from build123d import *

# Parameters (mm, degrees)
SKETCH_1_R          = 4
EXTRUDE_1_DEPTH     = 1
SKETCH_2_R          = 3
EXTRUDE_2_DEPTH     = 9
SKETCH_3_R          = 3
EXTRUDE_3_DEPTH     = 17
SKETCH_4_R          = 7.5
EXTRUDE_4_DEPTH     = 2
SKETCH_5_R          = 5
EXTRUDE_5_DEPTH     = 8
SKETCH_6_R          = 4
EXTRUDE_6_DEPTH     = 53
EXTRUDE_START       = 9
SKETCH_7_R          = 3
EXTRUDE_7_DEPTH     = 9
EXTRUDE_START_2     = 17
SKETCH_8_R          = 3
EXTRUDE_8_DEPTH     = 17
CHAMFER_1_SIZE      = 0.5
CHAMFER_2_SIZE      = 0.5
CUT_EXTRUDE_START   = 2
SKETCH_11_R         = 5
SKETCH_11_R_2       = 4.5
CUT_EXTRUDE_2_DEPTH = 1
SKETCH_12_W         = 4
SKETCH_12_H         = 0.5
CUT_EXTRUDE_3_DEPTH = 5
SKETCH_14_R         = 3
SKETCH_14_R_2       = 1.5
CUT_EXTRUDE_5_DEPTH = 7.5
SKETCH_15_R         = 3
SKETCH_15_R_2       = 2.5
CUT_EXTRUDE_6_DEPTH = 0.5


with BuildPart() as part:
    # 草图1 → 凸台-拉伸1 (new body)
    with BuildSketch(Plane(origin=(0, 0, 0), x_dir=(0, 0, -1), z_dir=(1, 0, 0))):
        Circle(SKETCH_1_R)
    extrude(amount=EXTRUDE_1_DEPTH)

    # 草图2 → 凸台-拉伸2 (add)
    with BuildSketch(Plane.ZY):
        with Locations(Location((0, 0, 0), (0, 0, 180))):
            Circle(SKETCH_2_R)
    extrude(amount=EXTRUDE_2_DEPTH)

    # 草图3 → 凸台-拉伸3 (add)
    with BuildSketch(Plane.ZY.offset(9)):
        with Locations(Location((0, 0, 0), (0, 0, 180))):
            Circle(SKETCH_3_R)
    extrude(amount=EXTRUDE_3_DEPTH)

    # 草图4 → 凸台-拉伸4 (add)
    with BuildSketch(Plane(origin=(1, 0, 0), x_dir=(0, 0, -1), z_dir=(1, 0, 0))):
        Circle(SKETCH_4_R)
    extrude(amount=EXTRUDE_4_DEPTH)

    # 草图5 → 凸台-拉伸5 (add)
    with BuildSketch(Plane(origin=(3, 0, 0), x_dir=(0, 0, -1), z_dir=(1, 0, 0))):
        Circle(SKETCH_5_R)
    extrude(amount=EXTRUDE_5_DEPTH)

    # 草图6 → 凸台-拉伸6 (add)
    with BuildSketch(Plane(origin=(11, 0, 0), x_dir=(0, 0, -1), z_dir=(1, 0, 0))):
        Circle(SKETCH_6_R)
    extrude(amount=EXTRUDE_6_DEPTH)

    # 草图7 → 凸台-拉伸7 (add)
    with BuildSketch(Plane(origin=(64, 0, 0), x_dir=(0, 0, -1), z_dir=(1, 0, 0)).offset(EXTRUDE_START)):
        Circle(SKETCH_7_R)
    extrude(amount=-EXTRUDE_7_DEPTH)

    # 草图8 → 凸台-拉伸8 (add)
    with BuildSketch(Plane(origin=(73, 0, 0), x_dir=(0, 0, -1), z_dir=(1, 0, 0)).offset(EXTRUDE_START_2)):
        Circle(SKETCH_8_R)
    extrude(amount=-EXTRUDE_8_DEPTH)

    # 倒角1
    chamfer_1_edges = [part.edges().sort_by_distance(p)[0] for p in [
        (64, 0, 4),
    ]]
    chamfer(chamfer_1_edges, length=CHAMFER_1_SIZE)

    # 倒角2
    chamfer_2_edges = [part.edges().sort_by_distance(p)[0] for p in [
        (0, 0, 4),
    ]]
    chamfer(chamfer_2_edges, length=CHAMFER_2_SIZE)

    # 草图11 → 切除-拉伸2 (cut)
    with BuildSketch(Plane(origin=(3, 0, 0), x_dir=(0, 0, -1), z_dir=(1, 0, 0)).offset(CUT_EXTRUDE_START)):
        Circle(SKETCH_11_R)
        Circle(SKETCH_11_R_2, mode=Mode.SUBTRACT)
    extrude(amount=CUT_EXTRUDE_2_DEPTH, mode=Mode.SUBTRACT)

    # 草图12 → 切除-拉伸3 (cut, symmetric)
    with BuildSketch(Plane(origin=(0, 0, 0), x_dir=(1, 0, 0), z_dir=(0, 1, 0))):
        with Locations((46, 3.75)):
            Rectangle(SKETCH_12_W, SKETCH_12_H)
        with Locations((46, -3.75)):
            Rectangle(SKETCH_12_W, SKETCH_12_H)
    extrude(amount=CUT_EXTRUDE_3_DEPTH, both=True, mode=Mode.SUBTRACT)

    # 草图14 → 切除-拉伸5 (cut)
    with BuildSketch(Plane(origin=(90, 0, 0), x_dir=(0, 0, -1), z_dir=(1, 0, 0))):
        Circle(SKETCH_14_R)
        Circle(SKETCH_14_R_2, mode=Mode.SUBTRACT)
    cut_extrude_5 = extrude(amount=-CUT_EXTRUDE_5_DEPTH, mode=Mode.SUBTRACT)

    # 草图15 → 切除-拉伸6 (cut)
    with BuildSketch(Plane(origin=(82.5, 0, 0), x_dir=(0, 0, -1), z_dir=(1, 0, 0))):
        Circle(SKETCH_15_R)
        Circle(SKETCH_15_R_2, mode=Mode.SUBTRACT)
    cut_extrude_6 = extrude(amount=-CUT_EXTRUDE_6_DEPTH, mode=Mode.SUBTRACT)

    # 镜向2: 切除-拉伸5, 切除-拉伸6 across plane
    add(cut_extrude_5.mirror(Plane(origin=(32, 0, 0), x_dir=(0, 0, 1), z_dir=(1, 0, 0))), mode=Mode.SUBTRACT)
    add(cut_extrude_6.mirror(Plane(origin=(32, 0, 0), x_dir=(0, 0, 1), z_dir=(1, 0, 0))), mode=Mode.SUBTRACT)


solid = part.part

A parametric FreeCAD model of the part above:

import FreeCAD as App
import Part
import Sketcher

V = App.Vector


def edges_at(feature, points):
    """Names of the edges that pass closest to the given points."""
    edges = feature.Shape.Edges
    near = lambda p: min(range(len(edges)), key=lambda i: edges[i].distToShape(Part.Vertex(*p))[0])
    return sorted({f"Edge{near(p) + 1}" for p in points})

doc = App.newDocument("Part")
params = doc.addObject("Spreadsheet::Sheet", "Params")
for row, (alias, value) in enumerate([
    ("sketch1_diameter", "8 mm"),
    ("pad1_length", "1 mm"),
    ("sketch2_diameter", "6 mm"),
    ("pad2_length", "9 mm"),
    ("sketch3_diameter", "6 mm"),
    ("pad3_length", "17 mm"),
    ("sketch4_diameter", "15 mm"),
    ("pad4_length", "2 mm"),
    ("sketch5_diameter", "10 mm"),
    ("pad5_length", "8 mm"),
    ("sketch6_diameter", "8 mm"),
    ("pad6_length", "53 mm"),
    ("sketch7_diameter", "6 mm"),
    ("pad7_length", "9 mm"),
    ("sketch8_diameter", "6 mm"),
    ("pad8_length", "17 mm"),
    ("chamfer_size", "0.5 mm"),
    ("chamfer2_size", "0.5 mm"),
    ("sketch9_diameter", "10 mm"),
    ("sketch9_diameter2", "9 mm"),
    ("pocket1_length", "1 mm"),
    ("sketch10_width", "4 mm"),
    ("sketch10_height", "0.5 mm"),
    ("pocket2_length", "10 mm"),
    ("sketch11_diameter", "6 mm"),
    ("sketch11_diameter2", "3 mm"),
    ("pocket3_length", "7.5 mm"),
    ("sketch12_diameter", "6 mm"),
    ("sketch12_diameter2", "5 mm"),
    ("pocket4_length", "0.5 mm"),
], start=1):
    params.set(f"A{row}", alias)
    params.set(f"B{row}", "=" + value)
    params.setAlias(f"B{row}", alias)

body = doc.addObject("PartDesign::Body", "Body")

sketch1 = doc.addObject("Sketcher::SketchObject", "Sketch")
body.addObject(sketch1)
sketch1.AttachmentSupport = (doc.YZ_Plane, [""])
sketch1.MapMode = "FlatFace"
sketch1.addGeometry(Part.Circle(V(0, 0, 0), V(0, 0, 1), 4), False)
sketch1.addConstraint([
    Sketcher.Constraint("Coincident", 0, 3, -1, 1),
    Sketcher.Constraint("Diameter", 0, 8.0),
])
sketch1.setExpression("Constraints[1]", "Params.sketch1_diameter")
pad1 = doc.addObject("PartDesign::Pad", "Pad")
body.addObject(pad1)
pad1.Profile = sketch1
pad1.setExpression("Length", "Params.pad1_length")

sketch2 = doc.addObject("Sketcher::SketchObject", "Sketch001")
body.addObject(sketch2)
sketch2.AttachmentSupport = (doc.YZ_Plane, [""])
sketch2.MapMode = "FlatFace"
sketch2.addGeometry(Part.Circle(V(0, 0, 0), V(0, 0, 1), 3), False)
sketch2.addConstraint([
    Sketcher.Constraint("Coincident", 0, 3, -1, 1),
    Sketcher.Constraint("Diameter", 0, 6.0),
])
sketch2.setExpression("Constraints[1]", "Params.sketch2_diameter")
pad2 = doc.addObject("PartDesign::Pad", "Pad001")
body.addObject(pad2)
pad2.Profile = sketch2
pad2.setExpression("Length", "Params.pad2_length")
pad2.Reversed = True

sketch3 = doc.addObject("Sketcher::SketchObject", "Sketch002")
body.addObject(sketch3)
sketch3.AttachmentSupport = (doc.YZ_Plane, [""])
sketch3.MapMode = "FlatFace"
sketch3.AttachmentOffset = App.Placement(V(0, 0, -9), App.Rotation())
sketch3.addGeometry(Part.Circle(V(0, 0, 0), V(0, 0, 1), 3), False)
sketch3.addConstraint([
    Sketcher.Constraint("Coincident", 0, 3, -1, 1),
    Sketcher.Constraint("Diameter", 0, 6.0),
])
sketch3.setExpression("Constraints[1]", "Params.sketch3_diameter")
pad3 = doc.addObject("PartDesign::Pad", "Pad002")
body.addObject(pad3)
pad3.Profile = sketch3
pad3.setExpression("Length", "Params.pad3_length")
pad3.Reversed = True

sketch4 = doc.addObject("Sketcher::SketchObject", "Sketch003")
body.addObject(sketch4)
sketch4.AttachmentSupport = (doc.YZ_Plane, [""])
sketch4.MapMode = "FlatFace"
sketch4.AttachmentOffset = App.Placement(V(0, 0, 1), App.Rotation())
sketch4.addGeometry(Part.Circle(V(0, 0, 0), V(0, 0, 1), 7.5), False)
sketch4.addConstraint([
    Sketcher.Constraint("Coincident", 0, 3, -1, 1),
    Sketcher.Constraint("Diameter", 0, 15.0),
])
sketch4.setExpression("Constraints[1]", "Params.sketch4_diameter")
pad4 = doc.addObject("PartDesign::Pad", "Pad003")
body.addObject(pad4)
pad4.Profile = sketch4
pad4.setExpression("Length", "Params.pad4_length")

sketch5 = doc.addObject("Sketcher::SketchObject", "Sketch004")
body.addObject(sketch5)
sketch5.AttachmentSupport = (doc.YZ_Plane, [""])
sketch5.MapMode = "FlatFace"
sketch5.AttachmentOffset = App.Placement(V(0, 0, 3), App.Rotation())
sketch5.addGeometry(Part.Circle(V(0, 0, 0), V(0, 0, 1), 5), False)
sketch5.addConstraint([
    Sketcher.Constraint("Coincident", 0, 3, -1, 1),
    Sketcher.Constraint("Diameter", 0, 10.0),
])
sketch5.setExpression("Constraints[1]", "Params.sketch5_diameter")
pad5 = doc.addObject("PartDesign::Pad", "Pad004")
body.addObject(pad5)
pad5.Profile = sketch5
pad5.setExpression("Length", "Params.pad5_length")

sketch6 = doc.addObject("Sketcher::SketchObject", "Sketch005")
body.addObject(sketch6)
sketch6.AttachmentSupport = (doc.YZ_Plane, [""])
sketch6.MapMode = "FlatFace"
sketch6.AttachmentOffset = App.Placement(V(0, 0, 11), App.Rotation())
sketch6.addGeometry(Part.Circle(V(0, 0, 0), V(0, 0, 1), 4), False)
sketch6.addConstraint([
    Sketcher.Constraint("Coincident", 0, 3, -1, 1),
    Sketcher.Constraint("Diameter", 0, 8.0),
])
sketch6.setExpression("Constraints[1]", "Params.sketch6_diameter")
pad6 = doc.addObject("PartDesign::Pad", "Pad005")
body.addObject(pad6)
pad6.Profile = sketch6
pad6.setExpression("Length", "Params.pad6_length")

sketch7 = doc.addObject("Sketcher::SketchObject", "Sketch006")
body.addObject(sketch7)
sketch7.AttachmentSupport = (doc.YZ_Plane, [""])
sketch7.MapMode = "FlatFace"
sketch7.AttachmentOffset = App.Placement(V(0, 0, 73), App.Rotation())
sketch7.addGeometry(Part.Circle(V(0, 0, 0), V(0, 0, 1), 3), False)
sketch7.addConstraint([
    Sketcher.Constraint("Coincident", 0, 3, -1, 1),
    Sketcher.Constraint("Diameter", 0, 6.0),
])
sketch7.setExpression("Constraints[1]", "Params.sketch7_diameter")
pad7 = doc.addObject("PartDesign::Pad", "Pad006")
body.addObject(pad7)
pad7.Profile = sketch7
pad7.setExpression("Length", "Params.pad7_length")
pad7.Reversed = True

sketch8 = doc.addObject("Sketcher::SketchObject", "Sketch007")
body.addObject(sketch8)
sketch8.AttachmentSupport = (doc.YZ_Plane, [""])
sketch8.MapMode = "FlatFace"
sketch8.AttachmentOffset = App.Placement(V(0, 0, 90), App.Rotation())
sketch8.addGeometry(Part.Circle(V(0, 0, 0), V(0, 0, 1), 3), False)
sketch8.addConstraint([
    Sketcher.Constraint("Coincident", 0, 3, -1, 1),
    Sketcher.Constraint("Diameter", 0, 6.0),
])
sketch8.setExpression("Constraints[1]", "Params.sketch8_diameter")
pad8 = doc.addObject("PartDesign::Pad", "Pad007")
body.addObject(pad8)
pad8.Profile = sketch8
pad8.setExpression("Length", "Params.pad8_length")
pad8.Reversed = True
doc.recompute()

chamfer = doc.addObject("PartDesign::Chamfer", "Chamfer")
body.addObject(chamfer)
chamfer.Base = (pad8, edges_at(pad8, [(64, 0, 4)]))
chamfer.setExpression("Size", "Params.chamfer_size")
doc.recompute()

chamfer2 = doc.addObject("PartDesign::Chamfer", "Chamfer001")
body.addObject(chamfer2)
chamfer2.Base = (chamfer, edges_at(chamfer, [(0, 0, 4)]))
chamfer2.setExpression("Size", "Params.chamfer2_size")

sketch9 = doc.addObject("Sketcher::SketchObject", "Sketch008")
body.addObject(sketch9)
sketch9.AttachmentSupport = (doc.YZ_Plane, [""])
sketch9.MapMode = "FlatFace"
sketch9.AttachmentOffset = App.Placement(V(0, 0, 5), App.Rotation())
sketch9.addGeometry([
    Part.Circle(V(0, 0, 0), V(0, 0, 1), 5),
    Part.Circle(V(0, 0, 0), V(0, 0, 1), 4.5),
], False)
sketch9.addConstraint([
    Sketcher.Constraint("Coincident", 0, 3, -1, 1),
    Sketcher.Constraint("Coincident", 1, 3, -1, 1),
    Sketcher.Constraint("Diameter", 0, 10.0),
    Sketcher.Constraint("Diameter", 1, 9.0),
])
sketch9.setExpression("Constraints[2]", "Params.sketch9_diameter")
sketch9.setExpression("Constraints[3]", "Params.sketch9_diameter2")
pocket1 = doc.addObject("PartDesign::Pocket", "Pocket")
body.addObject(pocket1)
pocket1.Profile = sketch9
pocket1.setExpression("Length", "Params.pocket1_length")
pocket1.Reversed = True

sketch10 = doc.addObject("Sketcher::SketchObject", "Sketch009")
body.addObject(sketch10)
sketch10.AttachmentSupport = (doc.XZ_Plane, [""])
sketch10.MapMode = "FlatFace"
sketch10.addGeometry([
    Part.LineSegment(V(44, -4, 0), V(44, -3.5, 0)),
    Part.LineSegment(V(44, -3.5, 0), V(48, -3.5, 0)),
    Part.LineSegment(V(48, -3.5, 0), V(48, -4, 0)),
    Part.LineSegment(V(48, -4, 0), V(44, -4, 0)),
    Part.LineSegment(V(44, 3.5, 0), V(44, 4, 0)),
    Part.LineSegment(V(44, 4, 0), V(48, 4, 0)),
    Part.LineSegment(V(48, 4, 0), V(48, 3.5, 0)),
    Part.LineSegment(V(48, 3.5, 0), V(44, 3.5, 0)),
], False)
sketch10.addConstraint([
    Sketcher.Constraint("Coincident", 0, 2, 1, 1),
    Sketcher.Constraint("Coincident", 1, 2, 2, 1),
    Sketcher.Constraint("Coincident", 2, 2, 3, 1),
    Sketcher.Constraint("Coincident", 3, 2, 0, 1),
    Sketcher.Constraint("Coincident", 4, 2, 5, 1),
    Sketcher.Constraint("Coincident", 5, 2, 6, 1),
    Sketcher.Constraint("Coincident", 6, 2, 7, 1),
    Sketcher.Constraint("Coincident", 7, 2, 4, 1),
    Sketcher.Constraint("Vertical", 0),
    Sketcher.Constraint("Horizontal", 1),
    Sketcher.Constraint("Vertical", 2),
    Sketcher.Constraint("Horizontal", 3),
    Sketcher.Constraint("Vertical", 4),
    Sketcher.Constraint("Horizontal", 5),
    Sketcher.Constraint("Vertical", 6),
    Sketcher.Constraint("Horizontal", 7),
    Sketcher.Constraint("Symmetric", 3, 2, 4, 2, -1),
    Sketcher.Constraint("Symmetric", 1, 2, 6, 2, -1),
    Sketcher.Constraint("DistanceX", 1, 1, 1, 2, 4.0),
    Sketcher.Constraint("DistanceY", 0, 1, 0, 2, 0.5),
    Sketcher.Constraint("DistanceX", -1, 1, 0, 2, 44.0),
    Sketcher.Constraint("DistanceY", 2, 2, -1, 1, 4.0),
])
sketch10.setExpression("Constraints[18]", "Params.sketch10_width")
sketch10.setExpression("Constraints[19]", "Params.sketch10_height")
pocket2 = doc.addObject("PartDesign::Pocket", "Pocket001")
body.addObject(pocket2)
pocket2.Profile = sketch10
pocket2.setExpression("Length", "Params.pocket2_length")
pocket2.Midplane = True

sketch11 = doc.addObject("Sketcher::SketchObject", "Sketch010")
body.addObject(sketch11)
sketch11.AttachmentSupport = (doc.YZ_Plane, [""])
sketch11.MapMode = "FlatFace"
sketch11.AttachmentOffset = App.Placement(V(0, 0, 90), App.Rotation())
sketch11.addGeometry([
    Part.Circle(V(0, 0, 0), V(0, 0, 1), 3),
    Part.Circle(V(0, 0, 0), V(0, 0, 1), 1.5),
], False)
sketch11.addConstraint([
    Sketcher.Constraint("Coincident", 0, 3, -1, 1),
    Sketcher.Constraint("Coincident", 1, 3, -1, 1),
    Sketcher.Constraint("Diameter", 0, 6.0),
    Sketcher.Constraint("Diameter", 1, 3.0),
])
sketch11.setExpression("Constraints[2]", "Params.sketch11_diameter")
sketch11.setExpression("Constraints[3]", "Params.sketch11_diameter2")
pocket3 = doc.addObject("PartDesign::Pocket", "Pocket002")
body.addObject(pocket3)
pocket3.Profile = sketch11
pocket3.setExpression("Length", "Params.pocket3_length")

sketch12 = doc.addObject("Sketcher::SketchObject", "Sketch011")
body.addObject(sketch12)
sketch12.AttachmentSupport = (doc.YZ_Plane, [""])
sketch12.MapMode = "FlatFace"
sketch12.AttachmentOffset = App.Placement(V(0, 0, 82.5), App.Rotation())
sketch12.addGeometry([
    Part.Circle(V(0, 0, 0), V(0, 0, 1), 3),
    Part.Circle(V(0, 0, 0), V(0, 0, 1), 2.5),
], False)
sketch12.addConstraint([
    Sketcher.Constraint("Coincident", 0, 3, -1, 1),
    Sketcher.Constraint("Coincident", 1, 3, -1, 1),
    Sketcher.Constraint("Diameter", 0, 6.0),
    Sketcher.Constraint("Diameter", 1, 5.0),
])
sketch12.setExpression("Constraints[2]", "Params.sketch12_diameter")
sketch12.setExpression("Constraints[3]", "Params.sketch12_diameter2")
pocket4 = doc.addObject("PartDesign::Pocket", "Pocket003")
body.addObject(pocket4)
pocket4.Profile = sketch12
pocket4.setExpression("Length", "Params.pocket4_length")
doc.recompute()

datumplane = doc.addObject("PartDesign::Plane", "DatumPlane")
body.addObject(datumplane)
datumplane.AttachmentSupport = (doc.YZ_Plane, [""])
datumplane.MapMode = "FlatFace"
datumplane.AttachmentOffset = App.Placement(V(0, 0, 32), App.Rotation())
mirrored = doc.addObject("PartDesign::Mirrored", "Mirrored")
body.addObject(mirrored)
mirrored.Originals = [pocket3, pocket4]
mirrored.MirrorPlane = (datumplane, [""])
body.Tip = mirrored

doc.recompute()
